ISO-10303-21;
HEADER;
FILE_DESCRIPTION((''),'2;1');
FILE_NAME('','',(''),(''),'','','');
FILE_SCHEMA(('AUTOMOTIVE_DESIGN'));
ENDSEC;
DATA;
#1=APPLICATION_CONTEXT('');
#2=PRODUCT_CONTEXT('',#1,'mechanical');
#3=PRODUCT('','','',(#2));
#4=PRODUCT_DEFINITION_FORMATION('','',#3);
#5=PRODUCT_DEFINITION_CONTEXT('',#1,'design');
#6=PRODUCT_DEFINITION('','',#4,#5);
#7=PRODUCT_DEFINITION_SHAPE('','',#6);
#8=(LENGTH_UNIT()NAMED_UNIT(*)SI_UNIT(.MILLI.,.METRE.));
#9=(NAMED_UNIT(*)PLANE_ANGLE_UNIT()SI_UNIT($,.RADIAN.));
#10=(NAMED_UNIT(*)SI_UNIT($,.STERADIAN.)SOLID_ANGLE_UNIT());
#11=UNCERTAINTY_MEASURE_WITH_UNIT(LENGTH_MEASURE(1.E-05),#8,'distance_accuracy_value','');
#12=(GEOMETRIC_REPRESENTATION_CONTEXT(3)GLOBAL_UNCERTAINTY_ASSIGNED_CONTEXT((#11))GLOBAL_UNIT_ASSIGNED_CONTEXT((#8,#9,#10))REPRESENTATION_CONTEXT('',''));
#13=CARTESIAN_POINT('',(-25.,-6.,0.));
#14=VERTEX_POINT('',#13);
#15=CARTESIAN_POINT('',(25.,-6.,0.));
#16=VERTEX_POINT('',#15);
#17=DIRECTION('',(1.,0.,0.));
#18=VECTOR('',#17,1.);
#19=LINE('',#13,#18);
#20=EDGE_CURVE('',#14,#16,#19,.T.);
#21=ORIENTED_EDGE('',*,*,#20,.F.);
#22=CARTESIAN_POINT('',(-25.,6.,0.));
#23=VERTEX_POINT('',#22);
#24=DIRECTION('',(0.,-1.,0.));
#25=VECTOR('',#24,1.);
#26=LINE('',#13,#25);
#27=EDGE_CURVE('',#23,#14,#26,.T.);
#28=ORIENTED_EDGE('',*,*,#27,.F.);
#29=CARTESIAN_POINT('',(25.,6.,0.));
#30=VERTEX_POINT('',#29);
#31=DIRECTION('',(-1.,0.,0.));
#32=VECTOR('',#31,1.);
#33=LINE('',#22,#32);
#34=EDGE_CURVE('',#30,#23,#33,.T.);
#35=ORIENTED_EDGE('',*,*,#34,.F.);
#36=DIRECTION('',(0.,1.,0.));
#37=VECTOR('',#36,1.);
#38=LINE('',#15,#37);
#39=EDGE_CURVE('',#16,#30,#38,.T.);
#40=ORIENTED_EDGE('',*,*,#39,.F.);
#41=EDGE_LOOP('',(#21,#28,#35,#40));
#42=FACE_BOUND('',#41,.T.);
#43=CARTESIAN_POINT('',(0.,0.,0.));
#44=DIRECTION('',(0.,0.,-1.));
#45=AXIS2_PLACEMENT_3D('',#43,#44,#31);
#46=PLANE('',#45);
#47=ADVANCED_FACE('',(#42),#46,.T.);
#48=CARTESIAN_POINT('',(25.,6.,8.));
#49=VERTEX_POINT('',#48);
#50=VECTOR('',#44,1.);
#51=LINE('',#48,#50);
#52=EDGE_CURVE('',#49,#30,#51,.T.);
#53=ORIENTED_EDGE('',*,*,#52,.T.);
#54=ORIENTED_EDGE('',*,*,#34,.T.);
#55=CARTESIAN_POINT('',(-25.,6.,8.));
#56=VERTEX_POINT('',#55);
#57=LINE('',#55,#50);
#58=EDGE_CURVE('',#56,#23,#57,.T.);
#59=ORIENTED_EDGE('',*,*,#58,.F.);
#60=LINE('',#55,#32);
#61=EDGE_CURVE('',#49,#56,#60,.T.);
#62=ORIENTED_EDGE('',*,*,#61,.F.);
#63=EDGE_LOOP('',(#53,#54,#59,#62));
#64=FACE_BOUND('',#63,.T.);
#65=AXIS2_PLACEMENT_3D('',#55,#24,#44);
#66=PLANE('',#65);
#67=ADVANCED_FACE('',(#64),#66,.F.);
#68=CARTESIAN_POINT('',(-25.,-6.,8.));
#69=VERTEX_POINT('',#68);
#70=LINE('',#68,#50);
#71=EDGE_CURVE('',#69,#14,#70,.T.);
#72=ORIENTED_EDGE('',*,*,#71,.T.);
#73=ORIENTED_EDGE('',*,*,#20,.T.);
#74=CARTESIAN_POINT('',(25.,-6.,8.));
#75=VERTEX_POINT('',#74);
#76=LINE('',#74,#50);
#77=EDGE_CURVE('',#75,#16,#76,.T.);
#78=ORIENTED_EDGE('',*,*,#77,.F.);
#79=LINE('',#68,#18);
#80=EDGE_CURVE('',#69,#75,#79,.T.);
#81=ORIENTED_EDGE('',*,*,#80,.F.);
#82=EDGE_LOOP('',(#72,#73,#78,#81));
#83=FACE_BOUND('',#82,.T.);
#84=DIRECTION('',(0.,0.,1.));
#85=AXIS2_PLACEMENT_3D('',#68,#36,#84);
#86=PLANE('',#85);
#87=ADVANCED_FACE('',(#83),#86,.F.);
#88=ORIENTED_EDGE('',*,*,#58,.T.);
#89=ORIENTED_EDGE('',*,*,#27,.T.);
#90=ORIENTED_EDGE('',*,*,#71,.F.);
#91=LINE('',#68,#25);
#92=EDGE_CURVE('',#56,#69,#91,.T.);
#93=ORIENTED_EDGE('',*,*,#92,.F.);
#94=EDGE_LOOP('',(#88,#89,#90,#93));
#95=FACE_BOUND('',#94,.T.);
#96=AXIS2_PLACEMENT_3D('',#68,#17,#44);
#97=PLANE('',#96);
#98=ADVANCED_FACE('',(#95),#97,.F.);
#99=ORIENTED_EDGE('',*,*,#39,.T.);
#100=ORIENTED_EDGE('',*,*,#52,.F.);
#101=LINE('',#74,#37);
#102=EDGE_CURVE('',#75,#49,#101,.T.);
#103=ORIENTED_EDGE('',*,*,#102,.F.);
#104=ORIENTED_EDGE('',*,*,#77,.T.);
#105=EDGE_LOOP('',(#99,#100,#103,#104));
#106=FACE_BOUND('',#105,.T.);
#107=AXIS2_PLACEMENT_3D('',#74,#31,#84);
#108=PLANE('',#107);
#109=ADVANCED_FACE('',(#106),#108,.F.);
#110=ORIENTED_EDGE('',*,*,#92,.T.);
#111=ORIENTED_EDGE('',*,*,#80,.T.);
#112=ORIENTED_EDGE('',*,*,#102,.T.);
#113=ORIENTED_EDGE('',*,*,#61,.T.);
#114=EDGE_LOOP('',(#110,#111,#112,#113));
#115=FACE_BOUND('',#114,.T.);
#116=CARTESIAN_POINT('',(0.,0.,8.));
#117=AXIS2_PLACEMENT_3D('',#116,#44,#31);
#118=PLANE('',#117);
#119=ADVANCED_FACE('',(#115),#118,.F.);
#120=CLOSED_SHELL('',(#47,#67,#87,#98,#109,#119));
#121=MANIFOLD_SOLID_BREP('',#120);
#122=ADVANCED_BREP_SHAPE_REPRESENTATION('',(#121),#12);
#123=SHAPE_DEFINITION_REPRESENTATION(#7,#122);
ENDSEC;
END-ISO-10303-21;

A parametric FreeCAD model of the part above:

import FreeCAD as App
import Part
import Sketcher
from FreeCAD import Vector
Q = App.Units.Quantity

doc = App.newDocument("Part")
body = doc.addObject("PartDesign::Body", "Body")

sketch1 = body.newObject("Sketcher::SketchObject", "Sketch")
sketch1.AttachmentSupport = (doc.getObject("XY_Plane"), [""])
sketch1.MapMode = "FlatFace"
sketch1.addGeometry(Part.LineSegment(Vector(-25, 6, 0), Vector(-25, -6, 0)), False)
sketch1.addGeometry(Part.LineSegment(Vector(-25, -6, 0), Vector(25, -6, 0)), False)
sketch1.addGeometry(Part.LineSegment(Vector(25, -6, 0), Vector(25, 6, 0)), False)
sketch1.addGeometry(Part.LineSegment(Vector(25, 6, 0), Vector(-25, 6, 0)), False)
sketch1.addConstraint(Sketcher.Constraint("Coincident", 0, 2, 1, 1))
sketch1.addConstraint(Sketcher.Constraint("Coincident", 1, 2, 2, 1))
sketch1.addConstraint(Sketcher.Constraint("Coincident", 2, 2, 3, 1))
sketch1.addConstraint(Sketcher.Constraint("Coincident", 3, 2, 0, 1))
sketch1.addConstraint(Sketcher.Constraint("Vertical", 0))
sketch1.addConstraint(Sketcher.Constraint("Horizontal", 1))
sketch1.addConstraint(Sketcher.Constraint("Vertical", 2))
sketch1.addConstraint(Sketcher.Constraint("Horizontal", 3))
sketch1.addConstraint(Sketcher.Constraint("Symmetric", 0, 2, 2, 2, -1, 1))
sketch1.addConstraint(Sketcher.Constraint("DistanceX", 1, 1, 1, 2, Q("50 mm")))
sketch1.addConstraint(Sketcher.Constraint("DistanceY", 0, 2, 0, 1, Q("12 mm")))
pad1 = body.newObject("PartDesign::Pad", "Pad")
pad1.Profile = sketch1
pad1.Length = 8

doc.recompute()
